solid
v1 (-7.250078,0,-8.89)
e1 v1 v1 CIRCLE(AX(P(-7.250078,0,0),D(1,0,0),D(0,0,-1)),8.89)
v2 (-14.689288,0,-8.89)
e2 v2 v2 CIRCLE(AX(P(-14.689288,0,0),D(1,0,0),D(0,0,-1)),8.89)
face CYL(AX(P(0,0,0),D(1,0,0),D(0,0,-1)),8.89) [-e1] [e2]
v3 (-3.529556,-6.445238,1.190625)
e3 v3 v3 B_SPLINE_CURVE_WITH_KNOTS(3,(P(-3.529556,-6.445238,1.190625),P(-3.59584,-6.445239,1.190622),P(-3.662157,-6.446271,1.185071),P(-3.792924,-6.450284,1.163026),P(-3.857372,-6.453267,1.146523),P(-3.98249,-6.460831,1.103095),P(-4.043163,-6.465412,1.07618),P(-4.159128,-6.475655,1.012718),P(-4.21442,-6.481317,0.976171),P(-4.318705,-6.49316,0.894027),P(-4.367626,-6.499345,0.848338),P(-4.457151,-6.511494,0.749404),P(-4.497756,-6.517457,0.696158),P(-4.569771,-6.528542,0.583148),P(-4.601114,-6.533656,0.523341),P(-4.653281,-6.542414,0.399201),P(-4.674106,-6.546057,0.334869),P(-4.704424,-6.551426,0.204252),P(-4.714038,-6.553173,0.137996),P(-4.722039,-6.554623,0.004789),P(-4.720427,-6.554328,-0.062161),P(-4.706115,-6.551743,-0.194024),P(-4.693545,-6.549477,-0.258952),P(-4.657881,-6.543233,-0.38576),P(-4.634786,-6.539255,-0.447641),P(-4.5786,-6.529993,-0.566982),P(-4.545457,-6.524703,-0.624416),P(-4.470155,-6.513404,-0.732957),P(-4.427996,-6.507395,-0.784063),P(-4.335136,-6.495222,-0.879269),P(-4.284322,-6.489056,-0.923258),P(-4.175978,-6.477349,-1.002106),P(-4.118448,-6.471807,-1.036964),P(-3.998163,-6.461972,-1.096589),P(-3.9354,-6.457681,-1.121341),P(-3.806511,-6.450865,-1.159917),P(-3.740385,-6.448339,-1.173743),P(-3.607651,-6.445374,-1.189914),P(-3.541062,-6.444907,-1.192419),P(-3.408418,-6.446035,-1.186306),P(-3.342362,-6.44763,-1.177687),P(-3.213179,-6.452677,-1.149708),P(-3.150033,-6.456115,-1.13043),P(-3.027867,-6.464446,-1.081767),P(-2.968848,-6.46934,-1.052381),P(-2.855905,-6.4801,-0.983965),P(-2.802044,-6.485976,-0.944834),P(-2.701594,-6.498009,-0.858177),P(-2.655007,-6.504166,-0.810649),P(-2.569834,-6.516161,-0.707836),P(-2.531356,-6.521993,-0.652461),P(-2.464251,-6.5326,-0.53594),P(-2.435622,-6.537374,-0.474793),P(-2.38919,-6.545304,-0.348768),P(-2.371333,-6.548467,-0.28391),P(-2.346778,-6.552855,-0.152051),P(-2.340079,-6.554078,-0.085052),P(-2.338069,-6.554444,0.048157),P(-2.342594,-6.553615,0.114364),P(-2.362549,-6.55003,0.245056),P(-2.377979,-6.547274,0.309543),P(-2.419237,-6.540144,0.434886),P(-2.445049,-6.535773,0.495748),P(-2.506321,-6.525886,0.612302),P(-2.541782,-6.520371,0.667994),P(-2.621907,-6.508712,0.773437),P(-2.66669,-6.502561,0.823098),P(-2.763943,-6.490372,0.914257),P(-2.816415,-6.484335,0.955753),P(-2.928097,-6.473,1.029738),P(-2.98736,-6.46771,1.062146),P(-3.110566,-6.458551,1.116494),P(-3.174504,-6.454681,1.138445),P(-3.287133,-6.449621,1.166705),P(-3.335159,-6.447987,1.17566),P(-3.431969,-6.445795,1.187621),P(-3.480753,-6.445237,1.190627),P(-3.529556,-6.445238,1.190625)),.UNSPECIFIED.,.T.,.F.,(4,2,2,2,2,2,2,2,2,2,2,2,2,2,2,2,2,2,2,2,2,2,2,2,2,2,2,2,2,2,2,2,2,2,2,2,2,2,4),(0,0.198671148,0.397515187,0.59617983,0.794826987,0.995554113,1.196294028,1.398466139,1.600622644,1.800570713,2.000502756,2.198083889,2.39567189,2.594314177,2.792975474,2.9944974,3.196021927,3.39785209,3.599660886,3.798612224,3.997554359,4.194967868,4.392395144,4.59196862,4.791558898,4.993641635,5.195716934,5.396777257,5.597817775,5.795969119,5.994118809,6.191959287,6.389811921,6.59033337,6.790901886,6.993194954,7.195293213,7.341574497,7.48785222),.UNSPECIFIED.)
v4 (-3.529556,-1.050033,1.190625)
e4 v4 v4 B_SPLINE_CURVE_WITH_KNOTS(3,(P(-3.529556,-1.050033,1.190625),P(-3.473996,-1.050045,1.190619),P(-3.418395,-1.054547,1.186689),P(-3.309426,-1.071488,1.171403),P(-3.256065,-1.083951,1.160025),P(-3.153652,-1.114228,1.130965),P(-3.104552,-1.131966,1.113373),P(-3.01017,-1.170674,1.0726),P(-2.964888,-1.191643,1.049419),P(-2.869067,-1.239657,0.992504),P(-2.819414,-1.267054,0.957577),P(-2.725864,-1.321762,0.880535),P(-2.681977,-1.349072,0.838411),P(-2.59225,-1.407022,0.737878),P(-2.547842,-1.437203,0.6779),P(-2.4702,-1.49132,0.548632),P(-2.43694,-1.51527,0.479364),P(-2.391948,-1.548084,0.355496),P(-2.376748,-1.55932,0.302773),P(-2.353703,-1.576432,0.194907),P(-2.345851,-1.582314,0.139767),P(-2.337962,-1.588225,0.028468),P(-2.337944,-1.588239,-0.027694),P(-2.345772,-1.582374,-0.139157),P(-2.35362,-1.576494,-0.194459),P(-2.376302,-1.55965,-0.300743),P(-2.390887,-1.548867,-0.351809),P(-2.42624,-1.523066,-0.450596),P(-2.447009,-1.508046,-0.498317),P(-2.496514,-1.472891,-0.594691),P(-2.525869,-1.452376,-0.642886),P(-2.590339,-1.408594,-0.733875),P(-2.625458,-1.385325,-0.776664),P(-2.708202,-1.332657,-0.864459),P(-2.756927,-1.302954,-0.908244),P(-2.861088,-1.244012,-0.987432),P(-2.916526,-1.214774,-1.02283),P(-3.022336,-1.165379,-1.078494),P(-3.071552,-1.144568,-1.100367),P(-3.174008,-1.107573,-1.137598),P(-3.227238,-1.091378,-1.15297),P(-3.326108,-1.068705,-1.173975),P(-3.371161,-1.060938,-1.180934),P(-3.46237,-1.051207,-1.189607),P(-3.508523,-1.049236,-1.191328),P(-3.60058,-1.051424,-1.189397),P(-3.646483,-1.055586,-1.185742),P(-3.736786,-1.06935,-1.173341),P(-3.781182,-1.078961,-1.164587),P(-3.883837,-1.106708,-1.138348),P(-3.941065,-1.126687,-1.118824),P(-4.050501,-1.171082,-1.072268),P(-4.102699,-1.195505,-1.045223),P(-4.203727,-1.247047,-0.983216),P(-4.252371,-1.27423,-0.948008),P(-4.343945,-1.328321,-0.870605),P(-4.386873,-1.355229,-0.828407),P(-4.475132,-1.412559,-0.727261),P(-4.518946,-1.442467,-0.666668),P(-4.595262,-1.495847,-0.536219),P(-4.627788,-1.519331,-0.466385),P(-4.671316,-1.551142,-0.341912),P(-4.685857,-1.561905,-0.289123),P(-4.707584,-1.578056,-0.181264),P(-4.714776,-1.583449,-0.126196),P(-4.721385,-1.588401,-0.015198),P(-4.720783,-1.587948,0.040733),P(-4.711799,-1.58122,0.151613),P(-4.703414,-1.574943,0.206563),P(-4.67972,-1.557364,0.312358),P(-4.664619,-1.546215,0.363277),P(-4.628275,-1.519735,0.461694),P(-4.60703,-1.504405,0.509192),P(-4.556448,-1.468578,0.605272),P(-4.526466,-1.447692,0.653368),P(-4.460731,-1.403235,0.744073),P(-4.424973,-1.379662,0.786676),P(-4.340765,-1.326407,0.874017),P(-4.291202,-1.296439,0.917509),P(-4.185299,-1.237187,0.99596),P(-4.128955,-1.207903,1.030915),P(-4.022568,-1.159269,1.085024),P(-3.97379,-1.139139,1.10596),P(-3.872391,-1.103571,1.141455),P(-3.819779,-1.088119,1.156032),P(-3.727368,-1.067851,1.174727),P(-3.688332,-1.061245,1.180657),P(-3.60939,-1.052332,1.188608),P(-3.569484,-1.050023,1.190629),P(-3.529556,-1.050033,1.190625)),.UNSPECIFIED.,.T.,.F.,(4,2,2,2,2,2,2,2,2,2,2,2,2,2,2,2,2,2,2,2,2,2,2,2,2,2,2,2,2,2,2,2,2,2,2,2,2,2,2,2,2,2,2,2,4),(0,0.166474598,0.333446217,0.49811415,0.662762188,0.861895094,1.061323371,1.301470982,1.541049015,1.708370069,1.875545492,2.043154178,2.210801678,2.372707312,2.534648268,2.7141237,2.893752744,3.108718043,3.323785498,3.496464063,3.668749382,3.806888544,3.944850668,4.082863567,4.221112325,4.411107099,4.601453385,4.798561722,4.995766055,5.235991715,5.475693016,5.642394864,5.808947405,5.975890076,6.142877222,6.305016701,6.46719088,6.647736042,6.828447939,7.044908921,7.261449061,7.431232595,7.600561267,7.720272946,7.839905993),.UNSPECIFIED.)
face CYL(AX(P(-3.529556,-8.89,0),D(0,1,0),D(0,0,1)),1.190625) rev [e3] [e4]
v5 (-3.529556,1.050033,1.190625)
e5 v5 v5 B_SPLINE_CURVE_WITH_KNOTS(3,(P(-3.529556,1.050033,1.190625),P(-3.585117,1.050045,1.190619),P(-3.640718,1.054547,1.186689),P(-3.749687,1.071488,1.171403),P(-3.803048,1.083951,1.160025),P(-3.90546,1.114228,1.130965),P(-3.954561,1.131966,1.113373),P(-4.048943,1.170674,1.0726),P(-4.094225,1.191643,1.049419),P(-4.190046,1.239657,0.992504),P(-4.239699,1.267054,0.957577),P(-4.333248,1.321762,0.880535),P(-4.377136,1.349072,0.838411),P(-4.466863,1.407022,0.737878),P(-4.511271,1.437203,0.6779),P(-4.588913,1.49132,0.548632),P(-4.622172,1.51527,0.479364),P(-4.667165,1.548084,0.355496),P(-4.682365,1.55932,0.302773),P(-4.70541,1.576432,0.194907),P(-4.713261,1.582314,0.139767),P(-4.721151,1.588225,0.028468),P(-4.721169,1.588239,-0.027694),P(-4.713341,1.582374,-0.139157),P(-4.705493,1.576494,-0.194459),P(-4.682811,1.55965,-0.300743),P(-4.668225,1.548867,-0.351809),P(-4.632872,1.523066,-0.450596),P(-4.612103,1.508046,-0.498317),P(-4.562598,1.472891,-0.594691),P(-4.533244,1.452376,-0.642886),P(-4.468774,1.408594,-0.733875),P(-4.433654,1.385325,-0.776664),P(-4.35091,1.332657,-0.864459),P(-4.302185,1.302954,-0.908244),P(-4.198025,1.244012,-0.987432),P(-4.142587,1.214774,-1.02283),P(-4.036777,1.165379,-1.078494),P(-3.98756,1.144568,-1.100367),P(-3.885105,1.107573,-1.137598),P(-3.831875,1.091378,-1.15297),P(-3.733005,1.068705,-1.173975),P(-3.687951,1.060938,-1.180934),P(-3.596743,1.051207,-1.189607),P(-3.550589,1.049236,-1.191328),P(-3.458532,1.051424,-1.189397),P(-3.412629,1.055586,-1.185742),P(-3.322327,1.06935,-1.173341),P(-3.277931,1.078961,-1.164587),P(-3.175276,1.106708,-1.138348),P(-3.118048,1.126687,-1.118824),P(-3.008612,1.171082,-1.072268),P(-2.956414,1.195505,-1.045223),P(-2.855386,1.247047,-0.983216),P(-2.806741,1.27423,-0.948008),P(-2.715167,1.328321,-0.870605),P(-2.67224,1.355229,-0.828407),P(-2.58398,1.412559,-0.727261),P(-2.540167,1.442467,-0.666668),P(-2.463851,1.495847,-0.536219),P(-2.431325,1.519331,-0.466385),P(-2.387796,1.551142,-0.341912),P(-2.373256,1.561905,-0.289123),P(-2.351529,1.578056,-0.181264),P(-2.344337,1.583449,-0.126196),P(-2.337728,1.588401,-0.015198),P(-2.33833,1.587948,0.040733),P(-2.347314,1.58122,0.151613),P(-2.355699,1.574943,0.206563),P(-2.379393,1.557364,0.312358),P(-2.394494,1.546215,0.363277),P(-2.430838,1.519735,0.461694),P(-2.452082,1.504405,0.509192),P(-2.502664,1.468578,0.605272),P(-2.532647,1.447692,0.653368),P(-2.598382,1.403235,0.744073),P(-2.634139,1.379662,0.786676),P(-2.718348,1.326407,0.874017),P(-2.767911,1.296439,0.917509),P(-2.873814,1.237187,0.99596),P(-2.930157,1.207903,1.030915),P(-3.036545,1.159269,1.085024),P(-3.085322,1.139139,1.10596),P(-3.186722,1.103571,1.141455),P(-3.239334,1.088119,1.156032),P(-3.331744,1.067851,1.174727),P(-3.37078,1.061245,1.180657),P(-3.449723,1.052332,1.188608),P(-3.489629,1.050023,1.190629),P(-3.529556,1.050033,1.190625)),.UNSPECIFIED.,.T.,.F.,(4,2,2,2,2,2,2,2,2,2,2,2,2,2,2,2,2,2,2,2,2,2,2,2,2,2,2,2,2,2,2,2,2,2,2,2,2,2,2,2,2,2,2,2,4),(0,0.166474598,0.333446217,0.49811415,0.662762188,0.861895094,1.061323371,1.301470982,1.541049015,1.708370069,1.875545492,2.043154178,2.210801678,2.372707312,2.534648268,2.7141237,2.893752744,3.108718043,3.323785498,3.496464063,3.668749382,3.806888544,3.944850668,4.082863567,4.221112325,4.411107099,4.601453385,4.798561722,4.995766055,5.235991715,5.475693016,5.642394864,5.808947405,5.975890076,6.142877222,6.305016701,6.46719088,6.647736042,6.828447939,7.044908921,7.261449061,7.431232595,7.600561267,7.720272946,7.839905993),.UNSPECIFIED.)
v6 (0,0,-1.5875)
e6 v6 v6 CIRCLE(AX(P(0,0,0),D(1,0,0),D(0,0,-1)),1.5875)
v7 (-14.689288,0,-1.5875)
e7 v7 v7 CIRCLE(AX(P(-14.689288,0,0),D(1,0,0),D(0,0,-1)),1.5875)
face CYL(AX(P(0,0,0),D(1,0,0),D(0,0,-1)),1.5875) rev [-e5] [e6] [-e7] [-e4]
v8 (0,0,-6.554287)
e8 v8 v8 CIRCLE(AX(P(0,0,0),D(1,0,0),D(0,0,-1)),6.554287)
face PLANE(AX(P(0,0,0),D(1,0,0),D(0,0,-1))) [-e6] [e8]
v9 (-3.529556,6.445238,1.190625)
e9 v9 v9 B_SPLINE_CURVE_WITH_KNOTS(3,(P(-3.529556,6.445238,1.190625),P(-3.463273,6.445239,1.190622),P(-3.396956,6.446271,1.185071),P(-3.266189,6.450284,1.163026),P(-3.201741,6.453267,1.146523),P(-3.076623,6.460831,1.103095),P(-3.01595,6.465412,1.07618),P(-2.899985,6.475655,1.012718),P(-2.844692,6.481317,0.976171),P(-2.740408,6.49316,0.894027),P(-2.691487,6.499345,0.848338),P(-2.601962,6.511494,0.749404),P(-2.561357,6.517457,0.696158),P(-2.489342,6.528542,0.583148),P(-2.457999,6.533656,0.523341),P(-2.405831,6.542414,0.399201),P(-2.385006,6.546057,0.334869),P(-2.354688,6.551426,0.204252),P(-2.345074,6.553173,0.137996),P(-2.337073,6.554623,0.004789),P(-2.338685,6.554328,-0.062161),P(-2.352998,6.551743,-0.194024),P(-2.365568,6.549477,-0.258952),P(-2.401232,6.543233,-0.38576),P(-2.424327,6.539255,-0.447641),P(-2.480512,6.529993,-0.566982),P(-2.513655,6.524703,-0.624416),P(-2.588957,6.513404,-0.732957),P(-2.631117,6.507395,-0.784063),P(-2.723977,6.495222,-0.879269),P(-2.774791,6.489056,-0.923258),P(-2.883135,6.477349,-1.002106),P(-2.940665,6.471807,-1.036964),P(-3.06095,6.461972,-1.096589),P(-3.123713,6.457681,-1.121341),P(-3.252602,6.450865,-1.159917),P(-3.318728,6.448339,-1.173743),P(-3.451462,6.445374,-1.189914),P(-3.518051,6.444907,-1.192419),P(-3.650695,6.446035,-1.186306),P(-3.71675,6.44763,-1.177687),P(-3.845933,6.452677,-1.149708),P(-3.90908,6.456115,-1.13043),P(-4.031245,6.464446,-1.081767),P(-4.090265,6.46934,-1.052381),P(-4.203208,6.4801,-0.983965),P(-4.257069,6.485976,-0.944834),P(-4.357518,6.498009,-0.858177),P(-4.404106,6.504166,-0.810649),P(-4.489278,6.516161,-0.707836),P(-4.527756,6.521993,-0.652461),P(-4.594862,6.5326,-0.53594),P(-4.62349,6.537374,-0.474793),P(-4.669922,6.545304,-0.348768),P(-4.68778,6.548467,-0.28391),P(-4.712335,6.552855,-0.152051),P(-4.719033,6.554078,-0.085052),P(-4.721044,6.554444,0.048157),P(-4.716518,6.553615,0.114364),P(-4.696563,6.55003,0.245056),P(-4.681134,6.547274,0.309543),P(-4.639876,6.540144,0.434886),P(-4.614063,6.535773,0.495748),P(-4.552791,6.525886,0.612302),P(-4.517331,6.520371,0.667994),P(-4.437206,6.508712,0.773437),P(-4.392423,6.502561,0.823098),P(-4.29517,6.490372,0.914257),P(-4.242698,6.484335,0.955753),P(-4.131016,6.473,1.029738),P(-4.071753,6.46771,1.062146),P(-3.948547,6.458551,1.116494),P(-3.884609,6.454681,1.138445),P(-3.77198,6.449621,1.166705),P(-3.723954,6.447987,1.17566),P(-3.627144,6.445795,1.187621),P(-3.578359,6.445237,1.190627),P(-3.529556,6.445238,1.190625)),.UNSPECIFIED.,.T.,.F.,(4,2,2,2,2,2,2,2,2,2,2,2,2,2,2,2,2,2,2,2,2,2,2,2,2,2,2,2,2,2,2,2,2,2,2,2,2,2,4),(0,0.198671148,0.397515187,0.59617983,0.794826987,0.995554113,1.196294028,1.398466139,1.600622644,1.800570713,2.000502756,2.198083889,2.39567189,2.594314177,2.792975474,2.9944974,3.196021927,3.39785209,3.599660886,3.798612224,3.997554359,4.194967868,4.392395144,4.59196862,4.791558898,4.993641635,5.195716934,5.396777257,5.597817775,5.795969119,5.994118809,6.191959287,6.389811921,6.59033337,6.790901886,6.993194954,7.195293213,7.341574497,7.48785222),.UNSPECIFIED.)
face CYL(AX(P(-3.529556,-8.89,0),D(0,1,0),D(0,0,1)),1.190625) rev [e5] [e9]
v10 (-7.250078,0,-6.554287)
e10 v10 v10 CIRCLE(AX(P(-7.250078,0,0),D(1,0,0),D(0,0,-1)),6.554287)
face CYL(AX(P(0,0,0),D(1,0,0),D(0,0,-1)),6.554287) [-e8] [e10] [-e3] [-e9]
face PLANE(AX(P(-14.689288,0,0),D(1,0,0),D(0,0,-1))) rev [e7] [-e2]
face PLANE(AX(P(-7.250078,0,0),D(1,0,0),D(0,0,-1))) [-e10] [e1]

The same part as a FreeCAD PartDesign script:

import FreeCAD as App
import Part
import Sketcher
Q = App.Units.Quantity


def add_polygon(sketch, points):
    """Adds a closed chain of lines whose ends are joined by coincident constraints."""
    first, n = sketch.GeometryCount, len(points)
    for a, b in zip(points, points[1:] + points[:1]):
        sketch.addGeometry(Part.LineSegment(App.Vector(*a, 0), App.Vector(*b, 0)), False)
    for i in range(n):
        sketch.addConstraint(Sketcher.Constraint("Coincident", first + i, 2, first + (i + 1) % n, 1))

doc = App.newDocument("Part")
body = doc.addObject("PartDesign::Body", "Body")

# Sketch on XY plane
sketch1 = body.newObject("Sketcher::SketchObject", "Sketch")
sketch1.AttachmentSupport = (doc.getObject("XY_Plane"), [""])
sketch1.MapMode = "FlatFace"
add_polygon(sketch1, [(-7.3, 1.6), (0, 1.6), (0, 6.6), (-7.3, 6.6), (-7.3, 8.9), (-14.7, 8.9), (-14.7, 1.6)])  # lines 0-6
sketch1.addConstraint(Sketcher.Constraint("Horizontal", 0))
sketch1.addConstraint(Sketcher.Constraint("Vertical", 1))
sketch1.addConstraint(Sketcher.Constraint("Horizontal", 2))
sketch1.addConstraint(Sketcher.Constraint("Vertical", 3))
sketch1.addConstraint(Sketcher.Constraint("Horizontal", 4))
sketch1.addConstraint(Sketcher.Constraint("Vertical", 5))
sketch1.addConstraint(Sketcher.Constraint("Horizontal", 6))
sketch1.addConstraint(Sketcher.Constraint("PointOnObject", 0, 2, -2))
sketch1.addConstraint(Sketcher.Constraint("Vertical", 3, 2, 6, 2))
sketch1.addConstraint(Sketcher.Constraint("DistanceY", -1, 1, 3, 2, Q("0.35 in")))
sketch1.addConstraint(Sketcher.Constraint("DistanceY", 5, 2, 5, 1, Q("0.2875 in")))
sketch1.addConstraint(Sketcher.Constraint("DistanceX", 4, 2, 4, 1, 7.43921))
sketch1.addConstraint(Sketcher.Constraint("DistanceX", 0, 1, 0, 2, 7.250078))
sketch1.addConstraint(Sketcher.Constraint("DistanceY", 1, 1, 1, 2, 4.966787))
revolution = body.newObject("PartDesign::Revolution", "Revolution")
revolution.Profile = sketch1
revolution.ReferenceAxis = (sketch1, ["H_Axis"])
revolution.Angle = 360

# Sketch on XZ plane
sketch2 = body.newObject("Sketcher::SketchObject", "Sketch001")
sketch2.AttachmentSupport = (doc.getObject("XZ_Plane"), [""])
sketch2.MapMode = "FlatFace"
sketch2.addGeometry(Part.Circle(App.Vector(-3.5, 0, 0), App.Vector(0, 0, 1), 1.2), False)
sketch2.addConstraint(Sketcher.Constraint("PointOnObject", 0, 3, -1))
sketch2.addConstraint(Sketcher.Constraint("Diameter", 0, Q("0.09375 in")))
sketch2.addConstraint(Sketcher.Constraint("DistanceX", 0, 3, -1, 1, 3.529556))
pocket1 = body.newObject("PartDesign::Pocket", "Pocket")
pocket1.Profile = sketch2
pocket1.Type = "ThroughAll"
pocket1.Midplane = True

doc.recompute()
